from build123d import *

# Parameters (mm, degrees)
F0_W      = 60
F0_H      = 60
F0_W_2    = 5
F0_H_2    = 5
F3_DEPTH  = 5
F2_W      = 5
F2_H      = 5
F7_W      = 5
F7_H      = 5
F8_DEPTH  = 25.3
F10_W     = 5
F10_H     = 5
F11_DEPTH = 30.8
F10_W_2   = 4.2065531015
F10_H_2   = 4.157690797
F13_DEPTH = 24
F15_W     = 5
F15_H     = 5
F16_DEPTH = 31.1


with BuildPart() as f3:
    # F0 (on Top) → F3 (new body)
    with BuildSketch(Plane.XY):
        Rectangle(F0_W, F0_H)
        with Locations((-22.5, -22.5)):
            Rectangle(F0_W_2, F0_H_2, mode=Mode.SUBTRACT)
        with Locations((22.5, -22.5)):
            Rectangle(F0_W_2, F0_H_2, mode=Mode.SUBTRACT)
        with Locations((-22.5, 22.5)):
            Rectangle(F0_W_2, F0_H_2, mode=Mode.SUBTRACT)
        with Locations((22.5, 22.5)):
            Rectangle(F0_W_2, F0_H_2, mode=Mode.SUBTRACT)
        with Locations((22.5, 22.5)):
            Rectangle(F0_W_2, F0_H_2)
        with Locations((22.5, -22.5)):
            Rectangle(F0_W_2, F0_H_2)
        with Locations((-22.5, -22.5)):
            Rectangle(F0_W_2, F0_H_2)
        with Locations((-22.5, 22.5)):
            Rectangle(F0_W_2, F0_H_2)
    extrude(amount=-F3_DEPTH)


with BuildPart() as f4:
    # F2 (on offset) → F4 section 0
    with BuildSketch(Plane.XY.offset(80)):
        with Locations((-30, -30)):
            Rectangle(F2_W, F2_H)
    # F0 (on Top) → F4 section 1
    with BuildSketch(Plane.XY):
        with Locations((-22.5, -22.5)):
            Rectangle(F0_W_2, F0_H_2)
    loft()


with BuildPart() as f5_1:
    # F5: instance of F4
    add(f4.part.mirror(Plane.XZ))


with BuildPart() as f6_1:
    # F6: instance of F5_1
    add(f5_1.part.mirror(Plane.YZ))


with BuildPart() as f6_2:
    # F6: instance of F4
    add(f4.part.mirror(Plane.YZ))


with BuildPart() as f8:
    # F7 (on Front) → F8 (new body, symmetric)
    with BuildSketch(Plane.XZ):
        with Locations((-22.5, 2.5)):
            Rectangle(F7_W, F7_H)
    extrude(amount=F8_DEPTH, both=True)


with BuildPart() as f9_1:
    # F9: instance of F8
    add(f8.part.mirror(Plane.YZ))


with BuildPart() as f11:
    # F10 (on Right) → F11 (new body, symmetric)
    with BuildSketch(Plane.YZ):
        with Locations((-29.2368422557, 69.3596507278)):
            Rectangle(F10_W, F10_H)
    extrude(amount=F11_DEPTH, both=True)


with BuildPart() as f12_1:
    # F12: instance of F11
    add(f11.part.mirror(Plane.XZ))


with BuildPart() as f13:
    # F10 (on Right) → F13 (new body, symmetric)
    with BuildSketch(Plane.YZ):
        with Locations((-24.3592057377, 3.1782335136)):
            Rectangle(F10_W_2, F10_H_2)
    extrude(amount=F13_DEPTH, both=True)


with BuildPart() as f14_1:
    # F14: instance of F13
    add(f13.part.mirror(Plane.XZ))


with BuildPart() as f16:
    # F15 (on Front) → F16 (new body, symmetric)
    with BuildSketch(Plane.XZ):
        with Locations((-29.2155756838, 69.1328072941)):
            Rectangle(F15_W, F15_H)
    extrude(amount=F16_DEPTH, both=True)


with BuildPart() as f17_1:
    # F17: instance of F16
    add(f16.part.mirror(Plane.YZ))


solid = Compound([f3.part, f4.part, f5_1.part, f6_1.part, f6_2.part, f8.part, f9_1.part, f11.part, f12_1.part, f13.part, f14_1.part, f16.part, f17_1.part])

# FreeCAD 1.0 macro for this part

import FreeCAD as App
import Part
import Sketcher
Q = App.Units.Quantity

doc = App.newDocument("Part")
body = doc.addObject("PartDesign::Body", "Body")

sketch1 = body.newObject("Sketcher::SketchObject", "Sketch")
sketch1.AttachmentSupport = (doc.getObject("XY_Plane"), [""])
sketch1.MapMode = "FlatFace"
sketch1.addGeometry([
    Part.LineSegment(App.Vector(-30, 30, 0), App.Vector(-30, -30, 0)),
    Part.LineSegment(App.Vector(-30, -30, 0), App.Vector(30, -30, 0)),
    Part.LineSegment(App.Vector(30, -30, 0), App.Vector(30, 30, 0)),
    Part.LineSegment(App.Vector(30, 30, 0), App.Vector(-30, 30, 0)),
], False)
sketch1.addConstraint([
    Sketcher.Constraint("Coincident", 0, 2, 1, 1),
    Sketcher.Constraint("Coincident", 1, 2, 2, 1),
    Sketcher.Constraint("Coincident", 2, 2, 3, 1),
    Sketcher.Constraint("Coincident", 3, 2, 0, 1),
    Sketcher.Constraint("Vertical", 0),
    Sketcher.Constraint("Horizontal", 1),
    Sketcher.Constraint("Vertical", 2),
    Sketcher.Constraint("Horizontal", 3),
    Sketcher.Constraint("Symmetric", 0, 2, 2, 2, -1, 1),
    Sketcher.Constraint("Equal", 3, 0),
    Sketcher.Constraint("DistanceX", 1, 1, 1, 2, Q("60 mm")),
])
pad1 = body.newObject("PartDesign::Pad", "Pad")
pad1.Profile = sketch1
pad1.Length = 5
pad1.Reversed = True
body2 = doc.addObject("PartDesign::Body", "Body001")

sketch2 = body2.newObject("Sketcher::SketchObject", "Sketch001")
sketch2.AttachmentSupport = (doc.getObject("XY_Plane001"), [""])
sketch2.MapMode = "FlatFace"
sketch2.AttachmentOffset = App.Placement(App.Vector(0, 0, 80), App.Rotation())
sketch2.addGeometry([
    Part.LineSegment(App.Vector(-32, -28, 0), App.Vector(-32, -32, 0)),
    Part.LineSegment(App.Vector(-32, -32, 0), App.Vector(-28, -32, 0)),
    Part.LineSegment(App.Vector(-28, -32, 0), App.Vector(-28, -28, 0)),
    Part.LineSegment(App.Vector(-28, -28, 0), App.Vector(-32, -28, 0)),
], False)
sketch2.addConstraint([
    Sketcher.Constraint("Coincident", 0, 2, 1, 1),
    Sketcher.Constraint("Coincident", 1, 2, 2, 1),
    Sketcher.Constraint("Coincident", 2, 2, 3, 1),
    Sketcher.Constraint("Coincident", 3, 2, 0, 1),
    Sketcher.Constraint("Vertical", 0),
    Sketcher.Constraint("Horizontal", 1),
    Sketcher.Constraint("Vertical", 2),
    Sketcher.Constraint("Horizontal", 3),
    Sketcher.Constraint("Equal", 3, 0),
    Sketcher.Constraint("DistanceX", 1, 1, 1, 2, Q("5 mm")),
    Sketcher.Constraint("DistanceX", 0, 2, -1, 1, Q("32.5 mm")),
    Sketcher.Constraint("DistanceY", 0, 2, -1, 1, Q("32.5 mm")),
])

sketch3 = body2.newObject("Sketcher::SketchObject", "Sketch002")
sketch3.AttachmentSupport = (doc.getObject("XY_Plane001"), [""])
sketch3.MapMode = "FlatFace"
sketch3.addGeometry([
    Part.LineSegment(App.Vector(-25, -20, 0), App.Vector(-25, -25, 0)),
    Part.LineSegment(App.Vector(-25, -25, 0), App.Vector(-20, -25, 0)),
    Part.LineSegment(App.Vector(-20, -25, 0), App.Vector(-20, -20, 0)),
    Part.LineSegment(App.Vector(-20, -20, 0), App.Vector(-25, -20, 0)),
], False)
sketch3.addConstraint([
    Sketcher.Constraint("Coincident", 0, 2, 1, 1),
    Sketcher.Constraint("Coincident", 1, 2, 2, 1),
    Sketcher.Constraint("Coincident", 2, 2, 3, 1),
    Sketcher.Constraint("Coincident", 3, 2, 0, 1),
    Sketcher.Constraint("Vertical", 0),
    Sketcher.Constraint("Horizontal", 1),
    Sketcher.Constraint("Vertical", 2),
    Sketcher.Constraint("Horizontal", 3),
    Sketcher.Constraint("Equal", 3, 0),
    Sketcher.Constraint("DistanceX", 1, 1, 1, 2, Q("5 mm")),
    Sketcher.Constraint("DistanceX", 0, 2, -1, 1, Q("25 mm")),
    Sketcher.Constraint("DistanceY", 0, 2, -1, 1, Q("25 mm")),
])

additiveloft = body2.newObject("PartDesign::AdditiveLoft", "AdditiveLoft")
additiveloft.Profile = sketch2
additiveloft.Sections = [sketch3]
body3 = doc.addObject("PartDesign::Body", "Body002")
doc.recompute()

mirroring = doc.addObject("Part::Mirroring", "Mirroring")
mirroring.Source = body2
mirroring.Base = App.Vector(0, 0, 0)
mirroring.Normal = App.Vector(0, -1, 0)
body3.BaseFeature = mirroring
doc.recompute()
body4 = doc.addObject("PartDesign::Body", "Body003")
doc.recompute()

mirroring2 = doc.addObject("Part::Mirroring", "Mirroring001")
mirroring2.Source = body3
mirroring2.Base = App.Vector(0, 0, 0)
mirroring2.Normal = App.Vector(1, 0, 0)
body4.BaseFeature = mirroring2
doc.recompute()
body5 = doc.addObject("PartDesign::Body", "Body004")
doc.recompute()

mirroring3 = doc.addObject("Part::Mirroring", "Mirroring002")
mirroring3.Source = body2
mirroring3.Base = App.Vector(0, 0, 0)
mirroring3.Normal = App.Vector(1, 0, 0)
body5.BaseFeature = mirroring3
doc.recompute()
body6 = doc.addObject("PartDesign::Body", "Body005")

sketch4 = body6.newObject("Sketcher::SketchObject", "Sketch003")
sketch4.AttachmentSupport = (doc.getObject("XZ_Plane005"), [""])
sketch4.MapMode = "FlatFace"
sketch4.addGeometry([
    Part.LineSegment(App.Vector(-25, 5, 0), App.Vector(-25, 0, 0)),
    Part.LineSegment(App.Vector(-25, 0, 0), App.Vector(-20, 0, 0)),
    Part.LineSegment(App.Vector(-20, 0, 0), App.Vector(-20, 5, 0)),
    Part.LineSegment(App.Vector(-20, 5, 0), App.Vector(-25, 5, 0)),
], False)
sketch4.addConstraint([
    Sketcher.Constraint("Coincident", 0, 2, 1, 1),
    Sketcher.Constraint("Coincident", 1, 2, 2, 1),
    Sketcher.Constraint("Coincident", 2, 2, 3, 1),
    Sketcher.Constraint("Coincident", 3, 2, 0, 1),
    Sketcher.Constraint("Vertical", 0),
    Sketcher.Constraint("Horizontal", 1),
    Sketcher.Constraint("Vertical", 2),
    Sketcher.Constraint("Horizontal", 3),
    Sketcher.Constraint("PointOnObject", 0, 2, -1),
    Sketcher.Constraint("Equal", 3, 0),
    Sketcher.Constraint("DistanceX", 1, 1, 1, 2, Q("5 mm")),
    Sketcher.Constraint("DistanceX", 0, 2, -1, 1, Q("25 mm")),
])
pad2 = body6.newObject("PartDesign::Pad", "Pad001")
pad2.Profile = sketch4
pad2.Length = 50.6
pad2.Midplane = True
body7 = doc.addObject("PartDesign::Body", "Body006")
doc.recompute()

mirroring4 = doc.addObject("Part::Mirroring", "Mirroring003")
mirroring4.Source = body6
mirroring4.Base = App.Vector(0, 0, 0)
mirroring4.Normal = App.Vector(1, 0, 0)
body7.BaseFeature = mirroring4
doc.recompute()
body8 = doc.addObject("PartDesign::Body", "Body007")

sketch5 = body8.newObject("Sketcher::SketchObject", "Sketch004")
sketch5.AttachmentSupport = (doc.getObject("YZ_Plane007"), [""])
sketch5.MapMode = "FlatFace"
sketch5.addGeometry([
    Part.LineSegment(App.Vector(-32, 72, 0), App.Vector(-32, 67, 0)),
    Part.LineSegment(App.Vector(-32, 67, 0), App.Vector(-27, 67, 0)),
    Part.LineSegment(App.Vector(-27, 67, 0), App.Vector(-27, 72, 0)),
    Part.LineSegment(App.Vector(-27, 72, 0), App.Vector(-32, 72, 0)),
], False)
sketch5.addConstraint([
    Sketcher.Constraint("Coincident", 0, 2, 1, 1),
    Sketcher.Constraint("Coincident", 1, 2, 2, 1),
    Sketcher.Constraint("Coincident", 2, 2, 3, 1),
    Sketcher.Constraint("Coincident", 3, 2, 0, 1),
    Sketcher.Constraint("Vertical", 0),
    Sketcher.Constraint("Horizontal", 1),
    Sketcher.Constraint("Vertical", 2),
    Sketcher.Constraint("Horizontal", 3),
    Sketcher.Constraint("Equal", 3, 0),
    Sketcher.Constraint("DistanceX", 1, 1, 1, 2, Q("5 mm")),
    Sketcher.Constraint("DistanceY", -1, 1, 0, 2, Q("66.859651 mm")),
    Sketcher.Constraint("DistanceX", 0, 2, -1, 1, Q("31.736842 mm")),
])
pad3 = body8.newObject("PartDesign::Pad", "Pad002")
pad3.Profile = sketch5
pad3.Length = 61.6
pad3.Midplane = True
body9 = doc.addObject("PartDesign::Body", "Body008")
doc.recompute()

mirroring5 = doc.addObject("Part::Mirroring", "Mirroring004")
mirroring5.Source = body8
mirroring5.Base = App.Vector(0, 0, 0)
mirroring5.Normal = App.Vector(0, -1, 0)
body9.BaseFeature = mirroring5
doc.recompute()
body10 = doc.addObject("PartDesign::Body", "Body009")

sketch6 = body10.newObject("Sketcher::SketchObject", "Sketch005")
sketch6.AttachmentSupport = (doc.getObject("YZ_Plane009"), [""])
sketch6.MapMode = "FlatFace"
sketch6.addGeometry([
    Part.LineSegment(App.Vector(-26.5, 5.3, 0), App.Vector(-26.5, 1.1, 0)),
    Part.LineSegment(App.Vector(-26.5, 1.1, 0), App.Vector(-22.3, 1.1, 0)),
    Part.LineSegment(App.Vector(-22.3, 1.1, 0), App.Vector(-22.3, 5.3, 0)),
    Part.LineSegment(App.Vector(-22.3, 5.3, 0), App.Vector(-26.5, 5.3, 0)),
], False)
sketch6.addConstraint([
    Sketcher.Constraint("Coincident", 0, 2, 1, 1),
    Sketcher.Constraint("Coincident", 1, 2, 2, 1),
    Sketcher.Constraint("Coincident", 2, 2, 3, 1),
    Sketcher.Constraint("Coincident", 3, 2, 0, 1),
    Sketcher.Constraint("Vertical", 0),
    Sketcher.Constraint("Horizontal", 1),
    Sketcher.Constraint("Vertical", 2),
    Sketcher.Constraint("Horizontal", 3),
    Sketcher.Constraint("DistanceY", 0, 2, 0, 1, Q("4.157691 mm")),
    Sketcher.Constraint("DistanceX", 1, 1, 1, 2, Q("4.206553 mm")),
    Sketcher.Constraint("DistanceY", -1, 1, 0, 2, Q("1.099388 mm")),
    Sketcher.Constraint("DistanceX", 1, 2, -1, 1, Q("22.255929 mm")),
])
pad4 = body10.newObject("PartDesign::Pad", "Pad003")
pad4.Profile = sketch6
pad4.Length = 48
pad4.Midplane = True
body11 = doc.addObject("PartDesign::Body", "Body010")
doc.recompute()

mirroring6 = doc.addObject("Part::Mirroring", "Mirroring005")
mirroring6.Source = body10
mirroring6.Base = App.Vector(0, 0, 0)
mirroring6.Normal = App.Vector(0, -1, 0)
body11.BaseFeature = mirroring6
doc.recompute()
body12 = doc.addObject("PartDesign::Body", "Body011")

sketch7 = body12.newObject("Sketcher::SketchObject", "Sketch006")
sketch7.AttachmentSupport = (doc.getObject("XZ_Plane011"), [""])
sketch7.MapMode = "FlatFace"
sketch7.addGeometry([
    Part.LineSegment(App.Vector(-32, 72, 0), App.Vector(-32, 67, 0)),
    Part.LineSegment(App.Vector(-32, 67, 0), App.Vector(-27, 67, 0)),
    Part.LineSegment(App.Vector(-27, 67, 0), App.Vector(-27, 72, 0)),
    Part.LineSegment(App.Vector(-27, 72, 0), App.Vector(-32, 72, 0)),
], False)
sketch7.addConstraint([
    Sketcher.Constraint("Coincident", 0, 2, 1, 1),
    Sketcher.Constraint("Coincident", 1, 2, 2, 1),
    Sketcher.Constraint("Coincident", 2, 2, 3, 1),
    Sketcher.Constraint("Coincident", 3, 2, 0, 1),
    Sketcher.Constraint("Vertical", 0),
    Sketcher.Constraint("Horizontal", 1),
    Sketcher.Constraint("Vertical", 2),
    Sketcher.Constraint("Horizontal", 3),
    Sketcher.Constraint("Equal", 3, 0),
    Sketcher.Constraint("DistanceX", 1, 1, 1, 2, Q("5 mm")),
    Sketcher.Constraint("DistanceX", 0, 2, -1, 1, Q("31.715576 mm")),
    Sketcher.Constraint("DistanceY", -1, 1, 0, 2, Q("66.632807 mm")),
])
pad5 = body12.newObject("PartDesign::Pad", "Pad004")
pad5.Profile = sketch7
pad5.Length = 62.2
pad5.Midplane = True
body13 = doc.addObject("PartDesign::Body", "Body012")
doc.recompute()

mirroring7 = doc.addObject("Part::Mirroring", "Mirroring006")
mirroring7.Source = body12
mirroring7.Base = App.Vector(0, 0, 0)
mirroring7.Normal = App.Vector(1, 0, 0)
body13.BaseFeature = mirroring7
doc.recompute()
mirroring.Visibility = False
mirroring2.Visibility = False
mirroring3.Visibility = False
mirroring4.Visibility = False
mirroring5.Visibility = False
mirroring6.Visibility = False
mirroring7.Visibility = False

doc.recompute()
